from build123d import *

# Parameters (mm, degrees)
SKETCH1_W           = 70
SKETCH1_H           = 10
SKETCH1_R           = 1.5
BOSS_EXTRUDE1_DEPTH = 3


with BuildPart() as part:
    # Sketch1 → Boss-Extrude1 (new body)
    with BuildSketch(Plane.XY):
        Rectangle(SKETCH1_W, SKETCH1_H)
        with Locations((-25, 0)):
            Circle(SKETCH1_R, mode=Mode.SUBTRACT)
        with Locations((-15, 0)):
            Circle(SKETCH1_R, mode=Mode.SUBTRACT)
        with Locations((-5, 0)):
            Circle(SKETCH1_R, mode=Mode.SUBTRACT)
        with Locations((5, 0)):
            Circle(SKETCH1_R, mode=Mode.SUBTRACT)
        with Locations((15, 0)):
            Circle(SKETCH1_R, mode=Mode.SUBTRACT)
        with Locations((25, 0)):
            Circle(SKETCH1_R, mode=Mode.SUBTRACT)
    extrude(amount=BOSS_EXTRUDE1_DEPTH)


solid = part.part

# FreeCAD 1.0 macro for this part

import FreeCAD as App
import Part
import Sketcher


def add_polygon(sketch, points):
    """Adds a closed chain of lines whose ends are joined by coincident constraints."""
    first, n = sketch.GeometryCount, len(points)
    for a, b in zip(points, points[1:] + points[:1]):
        sketch.addGeometry(Part.LineSegment(App.Vector(*a, 0), App.Vector(*b, 0)), False)
    for i in range(n):
        sketch.addConstraint(Sketcher.Constraint("Coincident", first + i, 2, first + (i + 1) % n, 1))

doc = App.newDocument("Part")
params = doc.addObject("Spreadsheet::Sheet", "Params")
for row, (alias, value) in enumerate([
    ("sketch1_diameter", "3 mm"),
    ("sketch1_width", "70 mm"),
    ("sketch1_height", "10 mm"),
    ("pad1_length", "3 mm"),
], start=1):
    params.set(f"A{row}", alias)
    params.set(f"B{row}", "=" + value)
    params.setAlias(f"B{row}", alias)

body = doc.addObject("PartDesign::Body", "Body")

# Sketch on XY plane
sketch1 = body.newObject("Sketcher::SketchObject", "Sketch")
sketch1.AttachmentSupport = (doc.getObject("XY_Plane"), [""])
sketch1.MapMode = "FlatFace"
add_polygon(sketch1, [(-35, 5), (-35, -5), (35, -5), (35, 5)])  # lines 0-3
sketch1.addGeometry(Part.Circle(App.Vector(-25, 0, 0), App.Vector(0, 0, 1), 1.5), False)  # 4
sketch1.addGeometry(Part.Circle(App.Vector(-15, 0, 0), App.Vector(0, 0, 1), 1.5), False)  # 5
sketch1.addGeometry(Part.Circle(App.Vector(-5, 0, 0), App.Vector(0, 0, 1), 1.5), False)  # 6
sketch1.addGeometry(Part.Circle(App.Vector(5, 0, 0), App.Vector(0, 0, 1), 1.5), False)  # 7
sketch1.addGeometry(Part.Circle(App.Vector(15, 0, 0), App.Vector(0, 0, 1), 1.5), False)  # 8
sketch1.addGeometry(Part.Circle(App.Vector(25, 0, 0), App.Vector(0, 0, 1), 1.5), False)  # 9
sketch1.addConstraint(Sketcher.Constraint("Vertical", 0))
sketch1.addConstraint(Sketcher.Constraint("Horizontal", 1))
sketch1.addConstraint(Sketcher.Constraint("Vertical", 2))
sketch1.addConstraint(Sketcher.Constraint("Horizontal", 3))
sketch1.addConstraint(Sketcher.Constraint("Equal", 4, 5))
sketch1.addConstraint(Sketcher.Constraint("Equal", 5, 6))
sketch1.addConstraint(Sketcher.Constraint("Equal", 6, 7))
sketch1.addConstraint(Sketcher.Constraint("Equal", 7, 8))
sketch1.addConstraint(Sketcher.Constraint("Equal", 8, 9))
sketch1.addConstraint(Sketcher.Constraint("Symmetric", 6, 3, 7, 3, -1, 1))
sketch1.addConstraint(Sketcher.Constraint("Symmetric", 5, 3, 8, 3, -1, 1))
sketch1.addConstraint(Sketcher.Constraint("Symmetric", 4, 3, 9, 3, -1, 1))
sketch1.addConstraint(Sketcher.Constraint("Symmetric", 0, 2, 2, 2, -1, 1))
sketch1.addConstraint(Sketcher.Constraint("PointOnObject", 4, 3, -1))
sketch1.addConstraint(Sketcher.Constraint("PointOnObject", 5, 3, -1))
sketch1.addConstraint(Sketcher.Constraint("PointOnObject", 6, 3, -1))
sketch1.addConstraint(Sketcher.Constraint("Diameter", 4, 3.0))
sketch1.addConstraint(Sketcher.Constraint("DistanceX", 1, 1, 1, 2, 70.0))
sketch1.addConstraint(Sketcher.Constraint("DistanceY", 0, 2, 0, 1, 10.0))
sketch1.addConstraint(Sketcher.Constraint("DistanceX", 4, 3, -1, 1, 25.0))
sketch1.addConstraint(Sketcher.Constraint("DistanceX", 5, 3, -1, 1, 15.0))
sketch1.addConstraint(Sketcher.Constraint("DistanceX", 6, 3, -1, 1, 5.0))
sketch1.setExpression("Constraints[20]", "Params.sketch1_diameter")
sketch1.setExpression("Constraints[21]", "Params.sketch1_width")
sketch1.setExpression("Constraints[22]", "Params.sketch1_height")
pad1 = body.newObject("PartDesign::Pad", "Pad")
pad1.Profile = sketch1
pad1.setExpression("Length", "Params.pad1_length")

doc.recompute()
